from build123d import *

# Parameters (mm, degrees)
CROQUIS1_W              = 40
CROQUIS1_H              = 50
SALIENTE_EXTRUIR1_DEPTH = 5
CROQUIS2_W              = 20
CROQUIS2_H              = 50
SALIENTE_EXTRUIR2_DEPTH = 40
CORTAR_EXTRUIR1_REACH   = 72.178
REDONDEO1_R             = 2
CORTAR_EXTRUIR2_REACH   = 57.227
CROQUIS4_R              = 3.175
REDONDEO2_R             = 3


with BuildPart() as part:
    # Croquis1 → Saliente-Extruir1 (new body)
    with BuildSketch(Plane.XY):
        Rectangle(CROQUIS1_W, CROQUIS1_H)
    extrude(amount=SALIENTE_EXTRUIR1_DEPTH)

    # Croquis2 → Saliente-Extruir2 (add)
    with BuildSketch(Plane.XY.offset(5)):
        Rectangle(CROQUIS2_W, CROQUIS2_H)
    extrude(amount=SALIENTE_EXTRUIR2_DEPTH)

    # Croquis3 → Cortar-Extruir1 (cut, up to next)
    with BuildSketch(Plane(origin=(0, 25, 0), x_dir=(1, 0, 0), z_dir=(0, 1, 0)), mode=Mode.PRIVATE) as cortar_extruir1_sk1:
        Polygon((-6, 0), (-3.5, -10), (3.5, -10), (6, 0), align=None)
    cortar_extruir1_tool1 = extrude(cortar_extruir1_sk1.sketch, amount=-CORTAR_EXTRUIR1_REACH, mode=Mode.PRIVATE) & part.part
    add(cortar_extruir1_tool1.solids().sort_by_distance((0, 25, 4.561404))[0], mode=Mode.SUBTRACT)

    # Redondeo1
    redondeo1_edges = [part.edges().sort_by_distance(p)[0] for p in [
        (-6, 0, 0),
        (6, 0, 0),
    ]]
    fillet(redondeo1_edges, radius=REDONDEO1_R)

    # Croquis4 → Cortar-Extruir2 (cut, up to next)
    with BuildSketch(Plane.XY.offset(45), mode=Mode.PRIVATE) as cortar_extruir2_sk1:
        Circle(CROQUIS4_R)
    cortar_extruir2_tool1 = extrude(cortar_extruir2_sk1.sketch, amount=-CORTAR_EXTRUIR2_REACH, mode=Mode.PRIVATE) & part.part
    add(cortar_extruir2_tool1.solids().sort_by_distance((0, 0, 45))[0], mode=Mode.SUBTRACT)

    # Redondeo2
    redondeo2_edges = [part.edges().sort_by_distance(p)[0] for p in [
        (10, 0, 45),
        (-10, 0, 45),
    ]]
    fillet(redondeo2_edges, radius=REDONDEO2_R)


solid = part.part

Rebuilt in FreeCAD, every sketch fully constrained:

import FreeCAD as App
import Part
import Sketcher

V = App.Vector


def edges_at(feature, points):
    """Names of the edges that pass closest to the given points."""
    edges = feature.Shape.Edges
    near = lambda p: min(range(len(edges)), key=lambda i: edges[i].distToShape(Part.Vertex(*p))[0])
    return sorted({f"Edge{near(p) + 1}" for p in points})


def add_polygon(sketch, points):
    """Adds a closed chain of lines whose ends are joined by coincident constraints."""
    first, n = sketch.GeometryCount, len(points)
    for a, b in zip(points, points[1:] + points[:1]):
        sketch.addGeometry(Part.LineSegment(App.Vector(*a, 0), App.Vector(*b, 0)), False)
    for i in range(n):
        sketch.addConstraint(Sketcher.Constraint("Coincident", first + i, 2, first + (i + 1) % n, 1))

doc = App.newDocument("Part")
body = doc.addObject("PartDesign::Body", "Body")

# Sketch on XY plane
sketch1 = body.newObject("Sketcher::SketchObject", "Sketch")
sketch1.AttachmentSupport = (doc.getObject("XY_Plane"), [""])
sketch1.MapMode = "FlatFace"
add_polygon(sketch1, [(-20, 25), (-20, -25), (20, -25), (20, 25)])  # lines 0-3
sketch1.addConstraint([
    Sketcher.Constraint("Vertical", 0),
    Sketcher.Constraint("Horizontal", 1),
    Sketcher.Constraint("Vertical", 2),
    Sketcher.Constraint("Horizontal", 3),
    Sketcher.Constraint("Symmetric", 0, 2, 2, 2, -1, 1),
    Sketcher.Constraint("DistanceX", 1, 1, 1, 2, 40.0),
    Sketcher.Constraint("DistanceY", 0, 2, 0, 1, 50.0),
])
pad1 = body.newObject("PartDesign::Pad", "Pad")
pad1.Profile = sketch1
pad1.Length = 5

# Sketch on XY plane
sketch2 = body.newObject("Sketcher::SketchObject", "Sketch001")
sketch2.AttachmentSupport = (doc.getObject("XY_Plane"), [""])
sketch2.MapMode = "FlatFace"
sketch2.AttachmentOffset = App.Placement(V(0, 0, 5), App.Rotation())
add_polygon(sketch2, [(-10, 25), (-10, -25), (10, -25), (10, 25)])  # lines 0-3
sketch2.addConstraint([
    Sketcher.Constraint("Vertical", 0),
    Sketcher.Constraint("Horizontal", 1),
    Sketcher.Constraint("Vertical", 2),
    Sketcher.Constraint("Horizontal", 3),
    Sketcher.Constraint("Symmetric", 0, 2, 2, 2, -1, 1),
    Sketcher.Constraint("DistanceX", 1, 1, 1, 2, 20.0),
    Sketcher.Constraint("DistanceY", 0, 2, 0, 1, 50.0),
])
pad2 = body.newObject("PartDesign::Pad", "Pad001")
pad2.Profile = sketch2
pad2.Length = 40

# Sketch on XZ plane
sketch3 = body.newObject("Sketcher::SketchObject", "Sketch002")
sketch3.AttachmentSupport = (doc.getObject("XZ_Plane"), [""])
sketch3.MapMode = "FlatFace"
sketch3.AttachmentOffset = App.Placement(V(0, 0, -25), App.Rotation())
add_polygon(sketch3, [(-6, 0), (-4, 10), (4, 10), (6, 0)])  # lines 0-3
sketch3.addConstraint([
    Sketcher.Constraint("Horizontal", 1),
    Sketcher.Constraint("Horizontal", 3),
    Sketcher.Constraint("Symmetric", 2, 2, 3, 2, -1, 1),
    Sketcher.Constraint("Equal", 0, 2),
    Sketcher.Constraint("DistanceX", 1, 1, 1, 2, 7.0),
    Sketcher.Constraint("DistanceX", 3, 2, 3, 1, 12.0),
    Sketcher.Constraint("DistanceY", -1, 1, 0, 2, 10.0),
])
pocket1 = body.newObject("PartDesign::Pocket", "Pocket")
pocket1.Profile = sketch3
pocket1.Type = "UpToFirst"
pocket1.Reversed = True
doc.recompute()

fillet = body.newObject("PartDesign::Fillet", "Fillet")
fillet.Base = (pocket1, edges_at(pocket1, [(-6, 0, 0), (6, 0, 0)]))
fillet.Radius = 2

# Sketch on XY plane
sketch4 = body.newObject("Sketcher::SketchObject", "Sketch003")
sketch4.AttachmentSupport = (doc.getObject("XY_Plane"), [""])
sketch4.MapMode = "FlatFace"
sketch4.AttachmentOffset = App.Placement(V(0, 0, 45), App.Rotation())
sketch4.addGeometry(Part.Circle(V(0, 0, 0), V(0, 0, 1), 3.2), False)
sketch4.addConstraint([
    Sketcher.Constraint("Coincident", 0, 3, -1, 1),
    Sketcher.Constraint("Diameter", 0, 6.35),
])
pocket2 = body.newObject("PartDesign::Pocket", "Pocket001")
pocket2.Profile = sketch4
pocket2.Type = "UpToFirst"
doc.recompute()

fillet2 = body.newObject("PartDesign::Fillet", "Fillet001")
fillet2.Base = (pocket2, edges_at(pocket2, [(10, 0, 45), (-10, 0, 45)]))
fillet2.Radius = 3

doc.recompute()
